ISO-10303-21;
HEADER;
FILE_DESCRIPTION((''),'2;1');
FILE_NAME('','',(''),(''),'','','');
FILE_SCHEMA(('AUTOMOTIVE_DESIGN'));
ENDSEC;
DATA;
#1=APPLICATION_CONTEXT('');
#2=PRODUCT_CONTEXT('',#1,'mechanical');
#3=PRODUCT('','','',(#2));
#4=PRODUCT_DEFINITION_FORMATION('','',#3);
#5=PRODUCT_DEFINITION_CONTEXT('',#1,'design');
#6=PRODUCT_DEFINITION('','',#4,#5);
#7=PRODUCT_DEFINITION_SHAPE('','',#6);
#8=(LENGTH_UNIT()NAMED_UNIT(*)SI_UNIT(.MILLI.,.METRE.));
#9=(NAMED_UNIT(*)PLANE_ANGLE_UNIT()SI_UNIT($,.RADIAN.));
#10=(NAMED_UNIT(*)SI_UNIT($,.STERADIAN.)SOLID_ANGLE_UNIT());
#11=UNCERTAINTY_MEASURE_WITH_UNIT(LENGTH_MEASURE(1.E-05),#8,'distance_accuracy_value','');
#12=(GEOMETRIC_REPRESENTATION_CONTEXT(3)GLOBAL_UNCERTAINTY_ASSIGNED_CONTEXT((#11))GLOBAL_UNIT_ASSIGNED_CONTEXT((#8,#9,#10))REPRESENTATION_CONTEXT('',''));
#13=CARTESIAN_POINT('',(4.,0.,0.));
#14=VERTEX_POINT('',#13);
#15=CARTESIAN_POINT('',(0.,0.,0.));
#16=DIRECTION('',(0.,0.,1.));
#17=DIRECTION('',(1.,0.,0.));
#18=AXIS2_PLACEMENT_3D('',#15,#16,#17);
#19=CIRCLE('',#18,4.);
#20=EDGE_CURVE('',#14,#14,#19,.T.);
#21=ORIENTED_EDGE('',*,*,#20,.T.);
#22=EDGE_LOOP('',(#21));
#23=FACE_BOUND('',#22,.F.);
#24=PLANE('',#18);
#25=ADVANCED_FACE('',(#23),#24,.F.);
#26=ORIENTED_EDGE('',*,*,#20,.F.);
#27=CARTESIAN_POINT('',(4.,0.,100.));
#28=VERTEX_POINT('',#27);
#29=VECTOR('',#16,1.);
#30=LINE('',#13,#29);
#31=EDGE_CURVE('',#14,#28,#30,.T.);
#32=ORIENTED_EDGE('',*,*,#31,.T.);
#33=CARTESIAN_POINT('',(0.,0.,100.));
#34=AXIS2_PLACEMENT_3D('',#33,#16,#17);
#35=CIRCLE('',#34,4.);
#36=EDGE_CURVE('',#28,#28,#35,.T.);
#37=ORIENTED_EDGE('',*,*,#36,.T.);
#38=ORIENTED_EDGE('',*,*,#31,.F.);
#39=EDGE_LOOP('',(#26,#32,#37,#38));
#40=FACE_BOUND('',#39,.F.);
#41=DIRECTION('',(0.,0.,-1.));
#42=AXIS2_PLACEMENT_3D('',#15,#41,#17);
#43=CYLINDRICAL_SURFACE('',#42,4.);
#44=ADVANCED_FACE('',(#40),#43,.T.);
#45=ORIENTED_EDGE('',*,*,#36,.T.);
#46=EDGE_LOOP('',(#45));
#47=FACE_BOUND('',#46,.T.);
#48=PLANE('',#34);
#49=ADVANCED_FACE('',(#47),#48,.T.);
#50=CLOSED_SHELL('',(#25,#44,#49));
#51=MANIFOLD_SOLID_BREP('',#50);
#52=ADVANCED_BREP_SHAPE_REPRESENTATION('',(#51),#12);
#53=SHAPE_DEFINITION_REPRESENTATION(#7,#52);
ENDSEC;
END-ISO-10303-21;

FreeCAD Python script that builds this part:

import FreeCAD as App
import Part
import Sketcher
from FreeCAD import Vector

doc = App.newDocument("Part")
body = doc.addObject("PartDesign::Body", "Body")

sketch1 = body.newObject("Sketcher::SketchObject", "Sketch")
sketch1.AttachmentSupport = (doc.getObject("XY_Plane"), [""])
sketch1.MapMode = "FlatFace"
sketch1.addGeometry(Part.Circle(Vector(0, 0, 0), Vector(0, 0, 1), 4), False)
sketch1.addConstraint(Sketcher.Constraint("Coincident", 0, 3, -1, 1))
sketch1.addConstraint(Sketcher.Constraint("Diameter", 0, 8.0))
pad1 = body.newObject("PartDesign::Pad", "Pad")
pad1.Profile = sketch1
pad1.Length = 100

doc.recompute()
